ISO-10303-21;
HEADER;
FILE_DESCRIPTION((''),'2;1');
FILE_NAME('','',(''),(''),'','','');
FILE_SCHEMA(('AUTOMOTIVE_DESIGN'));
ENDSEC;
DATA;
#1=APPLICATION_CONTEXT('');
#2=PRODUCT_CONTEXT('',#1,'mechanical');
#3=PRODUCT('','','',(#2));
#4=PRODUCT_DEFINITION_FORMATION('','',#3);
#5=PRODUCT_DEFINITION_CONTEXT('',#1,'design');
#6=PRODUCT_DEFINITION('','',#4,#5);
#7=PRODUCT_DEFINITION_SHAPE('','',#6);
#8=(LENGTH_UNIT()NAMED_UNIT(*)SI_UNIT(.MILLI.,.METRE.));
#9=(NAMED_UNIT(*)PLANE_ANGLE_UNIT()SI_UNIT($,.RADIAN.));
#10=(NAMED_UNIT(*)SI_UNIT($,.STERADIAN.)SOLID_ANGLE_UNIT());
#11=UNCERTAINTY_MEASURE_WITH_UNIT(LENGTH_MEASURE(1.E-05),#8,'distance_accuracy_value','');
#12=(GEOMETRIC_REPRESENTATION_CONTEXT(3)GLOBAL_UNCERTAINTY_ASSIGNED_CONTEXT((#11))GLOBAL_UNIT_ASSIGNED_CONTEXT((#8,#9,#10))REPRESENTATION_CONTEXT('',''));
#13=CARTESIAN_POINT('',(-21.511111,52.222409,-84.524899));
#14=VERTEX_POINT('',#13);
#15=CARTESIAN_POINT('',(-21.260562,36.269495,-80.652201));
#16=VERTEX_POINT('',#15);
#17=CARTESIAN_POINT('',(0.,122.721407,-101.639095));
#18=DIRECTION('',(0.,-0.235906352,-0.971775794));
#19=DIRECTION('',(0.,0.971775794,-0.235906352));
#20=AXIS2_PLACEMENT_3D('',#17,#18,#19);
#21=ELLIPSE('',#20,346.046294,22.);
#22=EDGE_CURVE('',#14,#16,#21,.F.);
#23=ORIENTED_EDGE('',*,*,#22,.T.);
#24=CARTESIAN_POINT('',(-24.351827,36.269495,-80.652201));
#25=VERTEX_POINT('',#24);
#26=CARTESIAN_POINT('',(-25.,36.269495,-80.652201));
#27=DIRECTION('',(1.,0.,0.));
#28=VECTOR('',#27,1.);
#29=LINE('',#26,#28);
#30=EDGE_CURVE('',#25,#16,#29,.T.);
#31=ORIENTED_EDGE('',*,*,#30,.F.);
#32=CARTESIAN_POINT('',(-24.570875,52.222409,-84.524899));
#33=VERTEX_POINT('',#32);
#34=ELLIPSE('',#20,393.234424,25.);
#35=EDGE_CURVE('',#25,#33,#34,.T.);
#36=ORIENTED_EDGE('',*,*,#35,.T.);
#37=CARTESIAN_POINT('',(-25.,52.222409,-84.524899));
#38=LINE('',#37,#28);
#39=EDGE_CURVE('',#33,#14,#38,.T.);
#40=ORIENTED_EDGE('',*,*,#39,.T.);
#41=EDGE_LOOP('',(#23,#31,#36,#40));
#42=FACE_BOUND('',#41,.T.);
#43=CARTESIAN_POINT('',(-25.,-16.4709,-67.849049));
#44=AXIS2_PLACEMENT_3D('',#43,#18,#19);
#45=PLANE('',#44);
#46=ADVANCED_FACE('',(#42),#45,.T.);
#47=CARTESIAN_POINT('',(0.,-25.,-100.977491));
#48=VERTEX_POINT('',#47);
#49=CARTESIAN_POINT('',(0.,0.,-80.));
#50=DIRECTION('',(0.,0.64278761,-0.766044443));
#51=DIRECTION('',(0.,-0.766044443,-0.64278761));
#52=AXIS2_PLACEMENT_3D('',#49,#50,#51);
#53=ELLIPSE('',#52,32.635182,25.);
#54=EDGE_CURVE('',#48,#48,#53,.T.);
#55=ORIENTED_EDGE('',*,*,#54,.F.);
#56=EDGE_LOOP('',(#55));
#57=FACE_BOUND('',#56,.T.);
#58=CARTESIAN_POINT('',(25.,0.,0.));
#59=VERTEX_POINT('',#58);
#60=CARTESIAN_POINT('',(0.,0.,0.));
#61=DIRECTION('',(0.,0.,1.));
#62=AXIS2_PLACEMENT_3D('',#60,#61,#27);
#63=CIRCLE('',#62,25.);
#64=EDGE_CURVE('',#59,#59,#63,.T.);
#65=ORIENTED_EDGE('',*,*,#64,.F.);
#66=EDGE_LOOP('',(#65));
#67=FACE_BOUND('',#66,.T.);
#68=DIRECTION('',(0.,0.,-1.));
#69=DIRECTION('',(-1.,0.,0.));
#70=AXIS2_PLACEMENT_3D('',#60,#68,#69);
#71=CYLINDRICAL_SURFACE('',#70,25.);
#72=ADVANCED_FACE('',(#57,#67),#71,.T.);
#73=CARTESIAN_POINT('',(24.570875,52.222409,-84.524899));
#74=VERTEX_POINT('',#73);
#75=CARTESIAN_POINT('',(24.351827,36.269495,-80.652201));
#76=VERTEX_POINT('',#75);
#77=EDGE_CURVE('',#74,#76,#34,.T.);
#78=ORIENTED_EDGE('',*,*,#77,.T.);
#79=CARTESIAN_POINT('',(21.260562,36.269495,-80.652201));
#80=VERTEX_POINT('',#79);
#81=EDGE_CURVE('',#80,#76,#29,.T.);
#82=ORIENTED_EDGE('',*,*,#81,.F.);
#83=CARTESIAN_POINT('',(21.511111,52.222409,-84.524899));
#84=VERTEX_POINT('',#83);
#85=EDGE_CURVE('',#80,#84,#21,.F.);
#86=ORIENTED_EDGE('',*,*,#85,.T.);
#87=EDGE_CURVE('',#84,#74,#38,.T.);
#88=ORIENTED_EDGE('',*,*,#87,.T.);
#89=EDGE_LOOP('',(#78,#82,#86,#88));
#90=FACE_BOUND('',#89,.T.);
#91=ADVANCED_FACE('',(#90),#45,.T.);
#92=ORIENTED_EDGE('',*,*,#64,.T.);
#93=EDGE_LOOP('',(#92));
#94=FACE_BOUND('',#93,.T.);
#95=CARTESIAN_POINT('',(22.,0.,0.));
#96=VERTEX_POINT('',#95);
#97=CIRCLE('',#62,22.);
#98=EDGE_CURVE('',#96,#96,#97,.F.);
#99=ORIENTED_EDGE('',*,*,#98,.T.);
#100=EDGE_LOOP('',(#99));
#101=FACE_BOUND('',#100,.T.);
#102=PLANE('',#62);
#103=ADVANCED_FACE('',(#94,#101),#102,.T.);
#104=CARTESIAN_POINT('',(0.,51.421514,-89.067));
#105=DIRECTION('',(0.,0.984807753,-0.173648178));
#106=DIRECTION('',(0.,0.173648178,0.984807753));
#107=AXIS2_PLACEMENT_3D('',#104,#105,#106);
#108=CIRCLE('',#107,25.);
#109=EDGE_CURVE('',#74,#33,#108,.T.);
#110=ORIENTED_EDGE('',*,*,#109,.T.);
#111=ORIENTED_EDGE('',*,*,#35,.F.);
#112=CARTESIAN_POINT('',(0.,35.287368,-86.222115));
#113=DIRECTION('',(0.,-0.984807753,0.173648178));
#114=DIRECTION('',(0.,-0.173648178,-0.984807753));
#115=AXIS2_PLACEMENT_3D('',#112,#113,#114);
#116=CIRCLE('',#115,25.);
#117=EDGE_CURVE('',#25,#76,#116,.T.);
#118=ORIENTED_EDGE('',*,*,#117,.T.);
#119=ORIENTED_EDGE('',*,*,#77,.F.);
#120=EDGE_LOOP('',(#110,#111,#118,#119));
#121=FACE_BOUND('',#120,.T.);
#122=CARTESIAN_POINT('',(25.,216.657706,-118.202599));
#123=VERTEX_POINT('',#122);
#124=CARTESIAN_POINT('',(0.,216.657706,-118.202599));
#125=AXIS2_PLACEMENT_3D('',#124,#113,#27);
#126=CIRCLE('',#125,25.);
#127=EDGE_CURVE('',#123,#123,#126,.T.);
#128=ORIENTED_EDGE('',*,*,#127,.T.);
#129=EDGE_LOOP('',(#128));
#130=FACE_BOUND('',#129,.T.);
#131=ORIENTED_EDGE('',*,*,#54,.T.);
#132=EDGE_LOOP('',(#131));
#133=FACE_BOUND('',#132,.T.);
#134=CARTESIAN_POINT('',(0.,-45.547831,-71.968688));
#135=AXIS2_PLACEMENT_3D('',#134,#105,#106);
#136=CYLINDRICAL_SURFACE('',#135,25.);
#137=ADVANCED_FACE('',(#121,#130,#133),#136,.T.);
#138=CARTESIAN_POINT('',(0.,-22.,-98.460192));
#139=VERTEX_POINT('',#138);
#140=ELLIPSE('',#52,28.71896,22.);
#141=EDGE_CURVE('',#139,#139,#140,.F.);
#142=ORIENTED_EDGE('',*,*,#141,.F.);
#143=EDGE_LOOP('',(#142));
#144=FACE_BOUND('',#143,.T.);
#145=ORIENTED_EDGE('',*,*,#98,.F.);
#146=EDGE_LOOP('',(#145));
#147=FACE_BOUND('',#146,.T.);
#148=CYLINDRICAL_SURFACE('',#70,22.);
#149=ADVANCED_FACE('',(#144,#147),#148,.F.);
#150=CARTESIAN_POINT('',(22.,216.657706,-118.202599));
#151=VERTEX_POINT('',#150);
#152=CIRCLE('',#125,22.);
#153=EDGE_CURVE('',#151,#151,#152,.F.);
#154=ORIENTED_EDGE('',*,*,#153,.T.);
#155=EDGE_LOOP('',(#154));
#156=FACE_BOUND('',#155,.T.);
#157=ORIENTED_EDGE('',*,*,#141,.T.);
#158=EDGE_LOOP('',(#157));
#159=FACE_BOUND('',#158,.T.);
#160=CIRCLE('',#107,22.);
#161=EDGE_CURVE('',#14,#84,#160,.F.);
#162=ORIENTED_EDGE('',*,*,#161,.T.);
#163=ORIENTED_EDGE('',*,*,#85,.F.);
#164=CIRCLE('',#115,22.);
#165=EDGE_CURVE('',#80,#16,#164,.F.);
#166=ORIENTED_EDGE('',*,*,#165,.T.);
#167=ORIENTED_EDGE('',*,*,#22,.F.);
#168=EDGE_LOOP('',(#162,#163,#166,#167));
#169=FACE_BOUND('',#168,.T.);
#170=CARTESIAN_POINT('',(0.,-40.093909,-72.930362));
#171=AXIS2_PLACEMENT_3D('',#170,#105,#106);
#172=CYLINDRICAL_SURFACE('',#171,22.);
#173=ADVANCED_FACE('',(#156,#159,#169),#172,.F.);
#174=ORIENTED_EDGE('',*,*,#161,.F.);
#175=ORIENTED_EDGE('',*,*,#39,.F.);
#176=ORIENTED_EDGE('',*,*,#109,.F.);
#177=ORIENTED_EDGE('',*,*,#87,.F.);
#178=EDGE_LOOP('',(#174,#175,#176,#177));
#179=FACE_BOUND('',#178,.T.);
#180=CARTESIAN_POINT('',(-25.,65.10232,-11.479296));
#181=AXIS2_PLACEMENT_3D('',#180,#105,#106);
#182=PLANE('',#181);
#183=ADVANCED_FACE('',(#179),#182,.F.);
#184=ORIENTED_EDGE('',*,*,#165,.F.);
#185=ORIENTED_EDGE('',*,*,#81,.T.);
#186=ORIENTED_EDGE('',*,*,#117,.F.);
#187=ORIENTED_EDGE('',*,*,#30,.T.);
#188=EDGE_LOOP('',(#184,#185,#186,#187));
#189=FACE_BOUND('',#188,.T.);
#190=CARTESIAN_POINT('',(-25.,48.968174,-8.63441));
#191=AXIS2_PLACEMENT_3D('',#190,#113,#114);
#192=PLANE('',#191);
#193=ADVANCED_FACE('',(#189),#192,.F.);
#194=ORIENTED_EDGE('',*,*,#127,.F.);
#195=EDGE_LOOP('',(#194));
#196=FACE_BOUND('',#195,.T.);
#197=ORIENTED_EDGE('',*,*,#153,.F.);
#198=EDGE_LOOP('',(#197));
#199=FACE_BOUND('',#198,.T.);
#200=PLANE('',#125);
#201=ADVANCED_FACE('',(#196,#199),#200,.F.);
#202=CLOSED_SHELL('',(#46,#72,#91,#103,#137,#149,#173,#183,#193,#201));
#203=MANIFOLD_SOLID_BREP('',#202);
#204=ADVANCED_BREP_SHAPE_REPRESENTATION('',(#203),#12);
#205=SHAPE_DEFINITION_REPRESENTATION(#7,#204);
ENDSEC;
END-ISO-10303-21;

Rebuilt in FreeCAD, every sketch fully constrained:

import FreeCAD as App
import Part
import Sketcher
from FreeCAD import Vector
Q = App.Units.Quantity


def add_polygon(sketch, points):
    """Adds a closed chain of lines whose ends are joined by coincident constraints."""
    first, n = sketch.GeometryCount, len(points)
    for a, b in zip(points, points[1:] + points[:1]):
        sketch.addGeometry(Part.LineSegment(App.Vector(*a, 0), App.Vector(*b, 0)), False)
    for i in range(n):
        sketch.addConstraint(Sketcher.Constraint("Coincident", first + i, 2, first + (i + 1) % n, 1))

doc = App.newDocument("Part")
body = doc.addObject("PartDesign::Body", "Body")

sketch1 = body.newObject("Sketcher::SketchObject", "Sketch")
sketch1.AttachmentSupport = (doc.getObject("XY_Plane"), [""])
sketch1.MapMode = "FlatFace"
sketch1.addGeometry([
    Part.Circle(Vector(0, 0, 0), Vector(0, 0, 1), 25),
    Part.Circle(Vector(0, 0, 0), Vector(0, 0, 1), 22),
], False)
sketch1.addConstraint([
    Sketcher.Constraint("Coincident", 0, 3, -1, 1),
    Sketcher.Constraint("Coincident", 1, 3, -1, 1),
    Sketcher.Constraint("Diameter", 0, 50.0),
    Sketcher.Constraint("Diameter", 1, 44.0),
])

sketch2 = body.newObject("Sketcher::SketchObject", "Sketch001")
sketch2.AttachmentSupport = (doc.getObject("YZ_Plane"), [""])
sketch2.MapMode = "FlatFace"
sketch2.addGeometry([
    Part.LineSegment(Vector(0, 0, 0), Vector(0, -80, 0)),
    Part.LineSegment(Vector(0, -80, 0), Vector(217, -118, 0)),
], False)
sketch2.addConstraint([
    Sketcher.Constraint("Coincident", 0, 2, 1, 1),
    Sketcher.Constraint("Vertical", 0),
    Sketcher.Constraint("Coincident", 0, 1, -1, 1),
    Sketcher.Constraint("DistanceY", 0, 2, 0, 1, 80.0),
    Sketcher.Constraint("Angle", 1, Q("-10 deg")),
    Sketcher.Constraint("Distance", 1, 220.0),
])
doc.recompute()

additivepipe = body.newObject("PartDesign::AdditivePipe", "AdditivePipe")
additivepipe.Profile = sketch1
additivepipe.Spine = (sketch2, ["Edge1", "Edge2"])
additivepipe.Transition = "Right corner"

sketch3 = body.newObject("Sketcher::SketchObject", "Sketch002")
sketch3.AttachmentSupport = (doc.getObject("YZ_Plane"), [""])
sketch3.MapMode = "FlatFace"
add_polygon(sketch3, [(31, -111), (47, -114), (50, -95), (52, -85), (36, -81)])
sketch3.addConstraint([
    Sketcher.Constraint("Perpendicular", 0, 1),
    Sketcher.Constraint("Parallel", 1, 2),
    Sketcher.Constraint("Parallel", 2, 4),
    Sketcher.Constraint("Angle", 0, Q("-10 deg")),
    Sketcher.Constraint("DistanceY", 2, 2, -1, 1, 84.524899),
    Sketcher.Constraint("DistanceY", 3, 2, -1, 1, 80.652201),
    Sketcher.Constraint("DistanceX", 0, 2, 2, 2, 5.142099),
    Sketcher.Constraint("Distance", 0, 16.383041),
    Sketcher.Constraint("Distance", 1, 19.18431),
    Sketcher.Constraint("DistanceX", -1, 1, 0, 2, 47.08031),
])
pocket1 = body.newObject("PartDesign::Pocket", "Pocket")
pocket1.Profile = sketch3
pocket1.Type = "ThroughAll"
pocket1.Midplane = True

doc.recompute()
